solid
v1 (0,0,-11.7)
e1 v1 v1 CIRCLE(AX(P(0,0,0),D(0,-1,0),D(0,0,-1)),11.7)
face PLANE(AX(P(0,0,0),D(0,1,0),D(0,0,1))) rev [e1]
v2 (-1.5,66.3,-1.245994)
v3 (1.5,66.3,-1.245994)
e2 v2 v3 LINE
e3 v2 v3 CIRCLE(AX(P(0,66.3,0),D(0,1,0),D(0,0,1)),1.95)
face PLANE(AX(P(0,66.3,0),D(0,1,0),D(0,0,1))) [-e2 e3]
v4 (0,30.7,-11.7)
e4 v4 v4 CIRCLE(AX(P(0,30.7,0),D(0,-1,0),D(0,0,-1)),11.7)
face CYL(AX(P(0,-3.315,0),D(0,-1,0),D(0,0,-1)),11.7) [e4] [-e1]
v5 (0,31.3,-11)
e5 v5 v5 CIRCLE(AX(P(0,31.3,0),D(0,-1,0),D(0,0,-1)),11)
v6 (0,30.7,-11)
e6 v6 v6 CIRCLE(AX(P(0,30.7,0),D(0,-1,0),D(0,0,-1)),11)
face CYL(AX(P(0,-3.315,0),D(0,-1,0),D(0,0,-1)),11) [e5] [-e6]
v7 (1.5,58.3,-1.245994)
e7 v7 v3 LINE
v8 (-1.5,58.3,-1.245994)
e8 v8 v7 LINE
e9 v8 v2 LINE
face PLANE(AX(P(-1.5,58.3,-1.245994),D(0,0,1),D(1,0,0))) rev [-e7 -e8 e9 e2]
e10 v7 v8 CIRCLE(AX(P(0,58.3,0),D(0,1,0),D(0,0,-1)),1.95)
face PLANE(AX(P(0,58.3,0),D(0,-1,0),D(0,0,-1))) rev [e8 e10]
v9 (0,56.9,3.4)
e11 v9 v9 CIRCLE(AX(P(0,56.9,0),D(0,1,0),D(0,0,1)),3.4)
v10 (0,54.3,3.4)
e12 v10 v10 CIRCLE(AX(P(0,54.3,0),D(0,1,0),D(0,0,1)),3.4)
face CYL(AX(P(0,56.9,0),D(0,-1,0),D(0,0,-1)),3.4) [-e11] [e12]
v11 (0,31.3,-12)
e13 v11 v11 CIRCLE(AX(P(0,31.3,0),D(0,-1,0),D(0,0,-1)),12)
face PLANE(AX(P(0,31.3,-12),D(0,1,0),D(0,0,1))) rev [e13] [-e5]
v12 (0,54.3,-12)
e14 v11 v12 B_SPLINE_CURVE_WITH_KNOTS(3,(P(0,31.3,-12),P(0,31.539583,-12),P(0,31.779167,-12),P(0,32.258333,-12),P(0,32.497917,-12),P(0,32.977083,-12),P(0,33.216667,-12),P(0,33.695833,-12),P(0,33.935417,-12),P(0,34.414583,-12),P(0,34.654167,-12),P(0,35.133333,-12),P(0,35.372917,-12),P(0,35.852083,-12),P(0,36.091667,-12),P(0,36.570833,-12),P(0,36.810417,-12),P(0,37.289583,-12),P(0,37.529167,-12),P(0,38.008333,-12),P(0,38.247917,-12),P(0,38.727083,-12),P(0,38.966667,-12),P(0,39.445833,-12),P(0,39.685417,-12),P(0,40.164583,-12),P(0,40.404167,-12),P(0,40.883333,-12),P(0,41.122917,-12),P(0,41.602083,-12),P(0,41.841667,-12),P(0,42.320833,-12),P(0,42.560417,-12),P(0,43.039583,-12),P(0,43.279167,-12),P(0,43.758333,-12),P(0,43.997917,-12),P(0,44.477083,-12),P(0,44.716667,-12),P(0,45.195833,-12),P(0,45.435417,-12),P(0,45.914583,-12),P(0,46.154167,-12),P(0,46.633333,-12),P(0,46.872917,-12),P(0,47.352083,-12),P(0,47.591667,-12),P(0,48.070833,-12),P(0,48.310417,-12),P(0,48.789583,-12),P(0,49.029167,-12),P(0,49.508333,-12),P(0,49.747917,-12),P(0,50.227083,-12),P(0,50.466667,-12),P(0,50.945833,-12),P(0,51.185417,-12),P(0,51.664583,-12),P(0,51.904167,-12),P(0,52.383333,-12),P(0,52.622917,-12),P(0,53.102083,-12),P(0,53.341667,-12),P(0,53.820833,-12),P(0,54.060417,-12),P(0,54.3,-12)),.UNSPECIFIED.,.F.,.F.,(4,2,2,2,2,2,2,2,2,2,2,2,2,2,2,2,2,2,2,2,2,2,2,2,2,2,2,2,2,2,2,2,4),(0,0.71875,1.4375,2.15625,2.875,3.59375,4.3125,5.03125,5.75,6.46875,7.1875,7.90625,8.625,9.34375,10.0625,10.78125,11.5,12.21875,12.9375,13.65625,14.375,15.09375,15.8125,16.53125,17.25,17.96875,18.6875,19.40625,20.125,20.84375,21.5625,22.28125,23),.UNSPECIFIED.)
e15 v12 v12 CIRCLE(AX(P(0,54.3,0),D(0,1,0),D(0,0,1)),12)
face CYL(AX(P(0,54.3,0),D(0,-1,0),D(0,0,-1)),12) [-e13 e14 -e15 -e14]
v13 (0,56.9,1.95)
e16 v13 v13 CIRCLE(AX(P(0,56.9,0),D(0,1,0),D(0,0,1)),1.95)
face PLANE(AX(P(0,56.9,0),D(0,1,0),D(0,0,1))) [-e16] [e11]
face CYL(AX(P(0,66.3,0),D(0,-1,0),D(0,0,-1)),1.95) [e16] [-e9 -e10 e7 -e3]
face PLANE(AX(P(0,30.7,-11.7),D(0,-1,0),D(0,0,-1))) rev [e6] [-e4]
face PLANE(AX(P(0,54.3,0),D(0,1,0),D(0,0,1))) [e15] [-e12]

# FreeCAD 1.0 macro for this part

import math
import FreeCAD as App
import Part
import Sketcher
from FreeCAD import Vector


def add_polygon(sketch, points):
    """Adds a closed chain of lines whose ends are joined by coincident constraints."""
    first, n = sketch.GeometryCount, len(points)
    for a, b in zip(points, points[1:] + points[:1]):
        sketch.addGeometry(Part.LineSegment(App.Vector(*a, 0), App.Vector(*b, 0)), False)
    for i in range(n):
        sketch.addConstraint(Sketcher.Constraint("Coincident", first + i, 2, first + (i + 1) % n, 1))

doc = App.newDocument("Part")
body = doc.addObject("PartDesign::Body", "Body")

# Sketch on XZ plane
sketch1 = body.newObject("Sketcher::SketchObject", "Sketch")
sketch1.AttachmentSupport = (doc.getObject("XZ_Plane"), [""])
sketch1.MapMode = "FlatFace"
sketch1.addGeometry(Part.Circle(Vector(0, 0, 0), Vector(0, 0, 1), 12), False)
sketch1.addConstraint(Sketcher.Constraint("Coincident", 0, 3, -1, 1))
sketch1.addConstraint(Sketcher.Constraint("Diameter", 0, 24.0))
pad1 = body.newObject("PartDesign::Pad", "Pad")
pad1.Profile = sketch1
pad1.Length = 54.3
pad1.Reversed = True

# Sketch on XZ plane
sketch2 = body.newObject("Sketcher::SketchObject", "Sketch001")
sketch2.AttachmentSupport = (doc.getObject("XZ_Plane"), [""])
sketch2.MapMode = "FlatFace"
sketch2.AttachmentOffset = App.Placement(Vector(0, 0, -54.3), App.Rotation())
sketch2.addGeometry(Part.Circle(Vector(0, 0, 0), Vector(0, 0, 1), 3.4), False)
sketch2.addGeometry(Part.Circle(Vector(0, 0, 0), Vector(0, 0, 1), 1.95), False)
sketch2.addConstraint(Sketcher.Constraint("Coincident", 0, 3, -1, 1))
sketch2.addConstraint(Sketcher.Constraint("Coincident", 1, 3, -1, 1))
sketch2.addConstraint(Sketcher.Constraint("Diameter", 0, 6.8))
sketch2.addConstraint(Sketcher.Constraint("Diameter", 1, 3.9))
pad2 = body.newObject("PartDesign::Pad", "Pad001")
pad2.Profile = sketch2
pad2.Length = 2.6
pad2.Reversed = True

# Sketch on XZ plane
sketch3 = body.newObject("Sketcher::SketchObject", "Sketch002")
sketch3.AttachmentSupport = (doc.getObject("XZ_Plane"), [""])
sketch3.MapMode = "FlatFace"
sketch3.AttachmentOffset = App.Placement(Vector(0, 0, -54.3), App.Rotation())
sketch3.addGeometry(Part.Circle(Vector(0, 0, 0), Vector(0, 0, 1), 1.95), False)
sketch3.addConstraint(Sketcher.Constraint("Coincident", 0, 3, -1, 1))
sketch3.addConstraint(Sketcher.Constraint("Diameter", 0, 3.9))
pad3 = body.newObject("PartDesign::Pad", "Pad002")
pad3.Profile = sketch3
pad3.Length = 12
pad3.Reversed = True

# Sketch on XZ plane
sketch4 = body.newObject("Sketcher::SketchObject", "Sketch003")
sketch4.AttachmentSupport = (doc.getObject("XZ_Plane"), [""])
sketch4.MapMode = "FlatFace"
sketch4.AttachmentOffset = App.Placement(Vector(0, 0, -58.3), App.Rotation())
sketch4.addGeometry(Part.LineSegment(Vector(-1.5, -1.245994, 0), Vector(1.5, -1.245994, 0)), False)
sketch4.addGeometry(Part.ArcOfCircle(Part.Circle(Vector(0, 0, 0), Vector(0, 0, 1), 1.95), math.radians(-140.284863), math.radians(-39.715137)), False)
sketch4.addConstraint(Sketcher.Constraint("Coincident", 0, 1, 1, 1))
sketch4.addConstraint(Sketcher.Constraint("Coincident", 1, 2, 0, 2))
sketch4.addConstraint(Sketcher.Constraint("Horizontal", 0))
sketch4.addConstraint(Sketcher.Constraint("Coincident", 1, 3, -1, 1))
sketch4.addConstraint(Sketcher.Constraint("DistanceX", 0, 1, 0, 2, 3.0))
sketch4.addConstraint(Sketcher.Constraint("Radius", 1, 1.95))
pocket1 = body.newObject("PartDesign::Pocket", "Pocket")
pocket1.Profile = sketch4
pocket1.Length = 8

# Sketch on YZ plane
sketch5 = body.newObject("Sketcher::SketchObject", "Sketch004")
sketch5.AttachmentSupport = (doc.getObject("YZ_Plane"), [""])
sketch5.MapMode = "FlatFace"
add_polygon(sketch5, [(31.3, -12), (31.3, -11), (30.7, -11), (30.7, -11.7), (0, -11.7), (0, -12)])  # lines 0-5
sketch5.addConstraint(Sketcher.Constraint("Vertical", 0))
sketch5.addConstraint(Sketcher.Constraint("Horizontal", 1))
sketch5.addConstraint(Sketcher.Constraint("Vertical", 2))
sketch5.addConstraint(Sketcher.Constraint("Horizontal", 3))
sketch5.addConstraint(Sketcher.Constraint("Vertical", 4))
sketch5.addConstraint(Sketcher.Constraint("Horizontal", 5))
sketch5.addConstraint(Sketcher.Constraint("PointOnObject", 3, 2, -2))
sketch5.addConstraint(Sketcher.Constraint("DistanceY", 0, 1, 0, 2, 1.0))
sketch5.addConstraint(Sketcher.Constraint("DistanceX", 1, 2, 1, 1, 0.6))
sketch5.addConstraint(Sketcher.Constraint("DistanceX", 3, 2, 3, 1, 30.7))
sketch5.addConstraint(Sketcher.Constraint("DistanceY", 2, 2, 2, 1, 0.7))
sketch5.addConstraint(Sketcher.Constraint("DistanceY", 0, 2, -1, 1, 11.0))
groove = body.newObject("PartDesign::Groove", "Groove")
groove.Profile = sketch5
groove.ReferenceAxis = (sketch5, ["H_Axis"])
groove.Angle = 360

doc.recompute()
